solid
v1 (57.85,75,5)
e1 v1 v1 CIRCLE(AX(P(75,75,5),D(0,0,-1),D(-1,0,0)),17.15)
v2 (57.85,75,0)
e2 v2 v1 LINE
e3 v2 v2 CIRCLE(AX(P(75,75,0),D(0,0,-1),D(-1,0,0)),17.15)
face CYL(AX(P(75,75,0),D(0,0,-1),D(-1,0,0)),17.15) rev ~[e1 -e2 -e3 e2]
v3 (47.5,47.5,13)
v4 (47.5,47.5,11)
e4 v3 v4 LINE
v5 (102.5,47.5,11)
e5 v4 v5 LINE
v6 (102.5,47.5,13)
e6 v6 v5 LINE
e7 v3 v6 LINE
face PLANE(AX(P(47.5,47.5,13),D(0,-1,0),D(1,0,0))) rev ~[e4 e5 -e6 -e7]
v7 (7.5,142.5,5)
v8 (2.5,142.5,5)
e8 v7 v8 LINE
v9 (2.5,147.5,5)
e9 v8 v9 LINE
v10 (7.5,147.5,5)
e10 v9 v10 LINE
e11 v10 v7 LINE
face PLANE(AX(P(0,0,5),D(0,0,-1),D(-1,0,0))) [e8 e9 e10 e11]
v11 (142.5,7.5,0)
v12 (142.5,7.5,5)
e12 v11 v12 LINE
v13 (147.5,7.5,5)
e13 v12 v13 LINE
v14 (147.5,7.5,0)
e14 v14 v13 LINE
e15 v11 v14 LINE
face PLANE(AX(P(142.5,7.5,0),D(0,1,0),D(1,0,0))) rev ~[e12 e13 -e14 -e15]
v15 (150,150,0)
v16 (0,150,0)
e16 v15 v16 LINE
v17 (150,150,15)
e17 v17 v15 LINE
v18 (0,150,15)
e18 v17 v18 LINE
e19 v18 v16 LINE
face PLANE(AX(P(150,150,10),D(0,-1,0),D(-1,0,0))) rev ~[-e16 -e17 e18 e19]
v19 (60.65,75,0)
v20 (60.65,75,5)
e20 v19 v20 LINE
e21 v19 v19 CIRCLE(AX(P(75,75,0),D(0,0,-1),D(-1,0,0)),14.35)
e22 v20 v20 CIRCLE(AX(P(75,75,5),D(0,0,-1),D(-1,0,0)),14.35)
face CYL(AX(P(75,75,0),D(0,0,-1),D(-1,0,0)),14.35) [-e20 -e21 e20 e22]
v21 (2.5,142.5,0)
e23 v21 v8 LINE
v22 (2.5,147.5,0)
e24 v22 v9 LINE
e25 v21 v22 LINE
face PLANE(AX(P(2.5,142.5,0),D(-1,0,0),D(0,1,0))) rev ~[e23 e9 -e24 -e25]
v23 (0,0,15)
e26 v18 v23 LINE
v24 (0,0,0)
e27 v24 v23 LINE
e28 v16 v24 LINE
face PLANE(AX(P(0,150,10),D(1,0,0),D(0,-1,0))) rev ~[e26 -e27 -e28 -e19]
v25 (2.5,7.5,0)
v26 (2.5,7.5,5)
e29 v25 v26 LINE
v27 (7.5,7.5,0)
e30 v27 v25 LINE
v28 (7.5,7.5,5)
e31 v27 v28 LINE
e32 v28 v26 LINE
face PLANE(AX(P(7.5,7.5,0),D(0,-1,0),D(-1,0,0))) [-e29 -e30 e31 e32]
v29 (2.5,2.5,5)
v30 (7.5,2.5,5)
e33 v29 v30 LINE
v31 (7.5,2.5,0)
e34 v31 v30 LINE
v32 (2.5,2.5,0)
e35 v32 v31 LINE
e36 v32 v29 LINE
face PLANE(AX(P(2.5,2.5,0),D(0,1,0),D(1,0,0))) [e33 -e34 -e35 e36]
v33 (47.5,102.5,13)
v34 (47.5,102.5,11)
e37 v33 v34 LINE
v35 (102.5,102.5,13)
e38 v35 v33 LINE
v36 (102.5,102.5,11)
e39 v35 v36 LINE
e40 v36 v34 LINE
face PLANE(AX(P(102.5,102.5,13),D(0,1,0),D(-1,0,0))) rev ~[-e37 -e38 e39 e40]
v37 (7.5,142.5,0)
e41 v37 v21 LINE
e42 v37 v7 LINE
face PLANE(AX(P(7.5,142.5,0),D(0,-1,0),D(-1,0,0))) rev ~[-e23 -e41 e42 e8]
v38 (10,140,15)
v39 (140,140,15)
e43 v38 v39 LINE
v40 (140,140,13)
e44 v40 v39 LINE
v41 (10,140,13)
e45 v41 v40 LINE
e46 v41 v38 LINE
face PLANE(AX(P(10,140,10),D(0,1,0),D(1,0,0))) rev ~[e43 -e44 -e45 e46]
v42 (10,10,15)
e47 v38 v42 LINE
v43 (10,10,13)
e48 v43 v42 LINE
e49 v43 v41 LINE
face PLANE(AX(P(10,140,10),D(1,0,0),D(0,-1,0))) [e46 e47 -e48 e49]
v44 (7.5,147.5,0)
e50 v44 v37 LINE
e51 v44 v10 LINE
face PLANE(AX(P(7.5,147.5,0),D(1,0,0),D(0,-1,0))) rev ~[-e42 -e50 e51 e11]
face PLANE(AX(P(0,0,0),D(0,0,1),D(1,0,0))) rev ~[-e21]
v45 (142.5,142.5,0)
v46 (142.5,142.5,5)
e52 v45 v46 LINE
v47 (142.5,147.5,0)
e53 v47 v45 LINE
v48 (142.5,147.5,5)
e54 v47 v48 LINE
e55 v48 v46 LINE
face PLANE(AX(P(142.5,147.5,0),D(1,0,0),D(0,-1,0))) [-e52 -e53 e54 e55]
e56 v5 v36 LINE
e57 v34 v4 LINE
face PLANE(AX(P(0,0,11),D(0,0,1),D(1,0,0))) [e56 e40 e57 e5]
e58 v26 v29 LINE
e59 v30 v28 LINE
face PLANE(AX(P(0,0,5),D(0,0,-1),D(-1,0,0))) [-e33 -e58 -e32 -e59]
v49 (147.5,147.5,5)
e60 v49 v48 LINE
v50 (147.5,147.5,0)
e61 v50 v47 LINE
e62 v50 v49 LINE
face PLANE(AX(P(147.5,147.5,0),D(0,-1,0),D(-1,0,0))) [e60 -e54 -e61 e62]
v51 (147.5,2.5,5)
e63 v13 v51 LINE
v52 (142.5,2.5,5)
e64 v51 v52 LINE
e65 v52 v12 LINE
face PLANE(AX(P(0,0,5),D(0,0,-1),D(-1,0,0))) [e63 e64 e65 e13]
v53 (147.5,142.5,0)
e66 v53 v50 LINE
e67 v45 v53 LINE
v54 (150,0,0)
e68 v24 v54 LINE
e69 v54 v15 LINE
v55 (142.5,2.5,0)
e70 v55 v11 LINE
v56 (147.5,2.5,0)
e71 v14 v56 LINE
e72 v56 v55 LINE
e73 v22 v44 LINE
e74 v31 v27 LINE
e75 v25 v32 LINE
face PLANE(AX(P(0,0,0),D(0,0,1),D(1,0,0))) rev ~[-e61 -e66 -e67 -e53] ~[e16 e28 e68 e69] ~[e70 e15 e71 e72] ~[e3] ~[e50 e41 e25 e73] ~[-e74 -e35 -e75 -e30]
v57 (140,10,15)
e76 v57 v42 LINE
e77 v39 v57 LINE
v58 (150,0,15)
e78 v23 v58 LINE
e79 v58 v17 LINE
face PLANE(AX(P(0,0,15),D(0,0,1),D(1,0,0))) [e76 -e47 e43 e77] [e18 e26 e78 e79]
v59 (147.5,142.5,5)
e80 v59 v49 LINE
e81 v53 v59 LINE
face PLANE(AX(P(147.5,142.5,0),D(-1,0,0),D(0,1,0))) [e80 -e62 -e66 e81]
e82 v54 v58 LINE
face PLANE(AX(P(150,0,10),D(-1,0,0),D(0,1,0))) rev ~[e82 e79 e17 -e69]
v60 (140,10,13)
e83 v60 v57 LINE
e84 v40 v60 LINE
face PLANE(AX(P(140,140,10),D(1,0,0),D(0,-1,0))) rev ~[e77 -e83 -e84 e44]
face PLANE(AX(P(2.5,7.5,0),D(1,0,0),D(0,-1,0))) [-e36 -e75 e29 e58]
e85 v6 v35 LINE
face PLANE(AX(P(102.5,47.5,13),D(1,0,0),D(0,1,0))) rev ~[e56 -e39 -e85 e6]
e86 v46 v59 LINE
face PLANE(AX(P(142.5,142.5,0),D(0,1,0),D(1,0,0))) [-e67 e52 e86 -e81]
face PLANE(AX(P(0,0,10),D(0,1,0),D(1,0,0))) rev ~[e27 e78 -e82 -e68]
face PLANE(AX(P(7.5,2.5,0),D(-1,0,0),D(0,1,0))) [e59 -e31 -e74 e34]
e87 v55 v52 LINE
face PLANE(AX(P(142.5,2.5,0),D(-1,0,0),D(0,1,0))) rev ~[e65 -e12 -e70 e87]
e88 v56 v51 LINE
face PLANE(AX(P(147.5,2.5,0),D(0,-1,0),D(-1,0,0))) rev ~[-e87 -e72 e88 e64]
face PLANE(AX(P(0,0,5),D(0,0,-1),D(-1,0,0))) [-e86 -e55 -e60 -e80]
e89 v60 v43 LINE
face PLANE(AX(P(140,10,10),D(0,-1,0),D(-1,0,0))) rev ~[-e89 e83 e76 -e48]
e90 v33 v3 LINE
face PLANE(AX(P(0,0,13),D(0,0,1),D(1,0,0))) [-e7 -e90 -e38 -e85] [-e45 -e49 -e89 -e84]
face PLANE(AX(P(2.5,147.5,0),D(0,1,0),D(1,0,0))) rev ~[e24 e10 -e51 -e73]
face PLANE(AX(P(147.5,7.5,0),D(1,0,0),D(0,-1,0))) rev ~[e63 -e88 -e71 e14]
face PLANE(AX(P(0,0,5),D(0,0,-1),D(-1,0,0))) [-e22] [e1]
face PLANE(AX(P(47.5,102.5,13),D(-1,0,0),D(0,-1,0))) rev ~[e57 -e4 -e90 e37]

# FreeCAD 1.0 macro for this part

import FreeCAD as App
import Part
import Sketcher
from FreeCAD import Vector


def add_polygon(sketch, points):
    """Adds a closed chain of lines whose ends are joined by coincident constraints."""
    first, n = sketch.GeometryCount, len(points)
    for a, b in zip(points, points[1:] + points[:1]):
        sketch.addGeometry(Part.LineSegment(App.Vector(*a, 0), App.Vector(*b, 0)), False)
    for i in range(n):
        sketch.addConstraint(Sketcher.Constraint("Coincident", first + i, 2, first + (i + 1) % n, 1))

doc = App.newDocument("Part")
body = doc.addObject("PartDesign::Body", "Body")

sketch1 = doc.addObject("Sketcher::SketchObject", "Sketch")
body.addObject(sketch1)
sketch1.AttachmentSupport = (doc.XY_Plane, [""])
sketch1.MapMode = "FlatFace"
add_polygon(sketch1, [(0, 150), (0, 0), (150, 0), (150, 150)])
sketch1.addConstraint([
    Sketcher.Constraint("Vertical", 0),
    Sketcher.Constraint("Horizontal", 1),
    Sketcher.Constraint("Vertical", 2),
    Sketcher.Constraint("Horizontal", 3),
    Sketcher.Constraint("Coincident", 0, 2, -1, 1),
    Sketcher.Constraint("Equal", 3, 0),
    Sketcher.Constraint("DistanceX", 1, 1, 1, 2, 150.0),
])
pad1 = doc.addObject("PartDesign::Pad", "Pad")
body.addObject(pad1)
pad1.Profile = sketch1
pad1.Length = 10

sketch2 = doc.addObject("Sketcher::SketchObject", "Sketch001")
body.addObject(sketch2)
sketch2.AttachmentSupport = (doc.XY_Plane, [""])
sketch2.MapMode = "FlatFace"
sketch2.AttachmentOffset = App.Placement(Vector(0, 0, 10), App.Rotation())
add_polygon(sketch2, [(10, 140), (10, 10), (140, 10), (140, 140)])
sketch2.addConstraint([
    Sketcher.Constraint("Vertical", 0),
    Sketcher.Constraint("Horizontal", 1),
    Sketcher.Constraint("Vertical", 2),
    Sketcher.Constraint("Horizontal", 3),
    Sketcher.Constraint("Equal", 3, 0),
    Sketcher.Constraint("DistanceX", 1, 1, 1, 2, 130.0),
    Sketcher.Constraint("DistanceX", -1, 1, 0, 2, 10.0),
    Sketcher.Constraint("DistanceY", -1, 1, 0, 2, 10.0),
])
pocket1 = doc.addObject("PartDesign::Pocket", "Pocket")
body.addObject(pocket1)
pocket1.Profile = sketch2
pocket1.Length = 2

sketch3 = doc.addObject("Sketcher::SketchObject", "Sketch002")
body.addObject(sketch3)
sketch3.AttachmentSupport = (doc.XY_Plane, [""])
sketch3.MapMode = "FlatFace"
sketch3.addGeometry(Part.Circle(Vector(75, 75, 0), Vector(0, 0, 1), 17), False)
sketch3.addGeometry(Part.Circle(Vector(75, 75, 0), Vector(0, 0, 1), 14), False)
add_polygon(sketch3, [(148, 8), (148, 2), (142, 2), (142, 8)])
add_polygon(sketch3, [(8, 2), (2, 2), (2, 8), (8, 8)])
add_polygon(sketch3, [(142, 148), (148, 148), (148, 142), (142, 142)])
add_polygon(sketch3, [(2, 142), (2, 148), (8, 148), (8, 142)])
sketch3.addConstraint([
    Sketcher.Constraint("Vertical", 2),
    Sketcher.Constraint("Horizontal", 3),
    Sketcher.Constraint("Vertical", 4),
    Sketcher.Constraint("Horizontal", 5),
    Sketcher.Constraint("Horizontal", 6),
    Sketcher.Constraint("Vertical", 7),
    Sketcher.Constraint("Horizontal", 8),
    Sketcher.Constraint("Vertical", 9),
    Sketcher.Constraint("Horizontal", 10),
    Sketcher.Constraint("Vertical", 11),
    Sketcher.Constraint("Horizontal", 12),
    Sketcher.Constraint("Vertical", 13),
    Sketcher.Constraint("Vertical", 14),
    Sketcher.Constraint("Horizontal", 15),
    Sketcher.Constraint("Vertical", 16),
    Sketcher.Constraint("Horizontal", 17),
    Sketcher.Constraint("Coincident", 1, 3, 0, 3),
    Sketcher.Constraint("Horizontal", 3, 2, 6, 2),
    Sketcher.Constraint("Horizontal", 5, 2, 7, 2),
    Sketcher.Constraint("Horizontal", 13, 2, 14, 2),
    Sketcher.Constraint("Horizontal", 12, 2, 16, 2),
    Sketcher.Constraint("Vertical", 5, 2, 10, 2),
    Sketcher.Constraint("Vertical", 4, 2, 12, 2),
    Sketcher.Constraint("Vertical", 7, 2, 14, 2),
    Sketcher.Constraint("Vertical", 9, 2, 15, 2),
    Sketcher.Constraint("Equal", 5, 6),
    Sketcher.Constraint("Equal", 17, 2),
    Sketcher.Constraint("Equal", 9, 11),
    Sketcher.Constraint("Diameter", 0, 34.3),
    Sketcher.Constraint("Diameter", 1, 28.7),
    Sketcher.Constraint("DistanceX", 3, 2, 3, 1, 5.0),
    Sketcher.Constraint("DistanceX", -1, 1, 0, 3, 75.0),
    Sketcher.Constraint("DistanceY", -1, 1, 0, 3, 75.0),
    Sketcher.Constraint("DistanceX", 6, 2, 3, 2, 140.0),
    Sketcher.Constraint("DistanceY", 5, 2, 10, 2, 140.0),
    Sketcher.Constraint("DistanceX", -1, 1, 2, 2, 147.5),
    Sketcher.Constraint("DistanceY", -1, 1, 2, 2, 2.5),
])
pocket2 = doc.addObject("PartDesign::Pocket", "Pocket001")
body.addObject(pocket2)
pocket2.Profile = sketch3
pocket2.Length = 5
pocket2.Reversed = True

sketch4 = doc.addObject("Sketcher::SketchObject", "Sketch003")
body.addObject(sketch4)
sketch4.AttachmentSupport = (doc.XY_Plane, [""])
sketch4.MapMode = "FlatFace"
sketch4.AttachmentOffset = App.Placement(Vector(0, 0, 8), App.Rotation())
add_polygon(sketch4, [(102, 102), (48, 102), (48, 48), (102, 48)])
sketch4.addConstraint([
    Sketcher.Constraint("Horizontal", 0),
    Sketcher.Constraint("Vertical", 1),
    Sketcher.Constraint("Horizontal", 2),
    Sketcher.Constraint("Vertical", 3),
    Sketcher.Constraint("Equal", 2, 1),
    Sketcher.Constraint("DistanceX", 0, 2, 0, 1, 55.0),
    Sketcher.Constraint("DistanceX", -1, 1, 0, 2, 47.5),
    Sketcher.Constraint("DistanceY", -1, 1, 0, 2, 102.5),
])
pocket3 = doc.addObject("PartDesign::Pocket", "Pocket002")
body.addObject(pocket3)
pocket3.Profile = sketch4
pocket3.Length = 2

sketch5 = doc.addObject("Sketcher::SketchObject", "Sketch004")
body.addObject(sketch5)
sketch5.AttachmentSupport = (doc.XY_Plane, [""])
sketch5.MapMode = "FlatFace"
sketch5.AttachmentOffset = App.Placement(Vector(0, 0, 6), App.Rotation())
add_polygon(sketch5, [(48, 102), (48, 48), (102, 48), (102, 102)])
sketch5.addConstraint([
    Sketcher.Constraint("Vertical", 0),
    Sketcher.Constraint("Horizontal", 1),
    Sketcher.Constraint("Vertical", 2),
    Sketcher.Constraint("Horizontal", 3),
    Sketcher.Constraint("Equal", 3, 0),
    Sketcher.Constraint("DistanceX", 1, 1, 1, 2, 55.0),
    Sketcher.Constraint("DistanceX", -1, 1, 0, 2, 47.5),
    Sketcher.Constraint("DistanceY", -1, 1, 0, 2, 47.5),
])
pad2 = doc.addObject("PartDesign::Pad", "Pad001")
body.addObject(pad2)
pad2.Profile = sketch5
pad2.Length = 2

sketch6 = doc.addObject("Sketcher::SketchObject", "Sketch005")
body.addObject(sketch6)
sketch6.AttachmentSupport = (doc.XY_Plane, [""])
sketch6.MapMode = "FlatFace"
sketch6.AttachmentOffset = App.Placement(Vector(0, 0, 8), App.Rotation())
add_polygon(sketch6, [(38, 112), (38, 38), (112, 38), (112, 112)])
sketch6.addConstraint([
    Sketcher.Constraint("Vertical", 0),
    Sketcher.Constraint("Horizontal", 1),
    Sketcher.Constraint("Vertical", 2),
    Sketcher.Constraint("Horizontal", 3),
    Sketcher.Constraint("Equal", 3, 0),
    Sketcher.Constraint("DistanceX", 1, 1, 1, 2, 75.0),
    Sketcher.Constraint("DistanceX", -1, 1, 0, 2, 37.5),
    Sketcher.Constraint("DistanceY", -1, 1, 0, 2, 37.5),
])
pad3 = doc.addObject("PartDesign::Pad", "Pad002")
body.addObject(pad3)
pad3.Profile = sketch6
pad3.Length = 5

sketch7 = doc.addObject("Sketcher::SketchObject", "Sketch006")
body.addObject(sketch7)
sketch7.AttachmentSupport = (doc.XY_Plane, [""])
sketch7.MapMode = "FlatFace"
sketch7.AttachmentOffset = App.Placement(Vector(0, 0, 13), App.Rotation())
add_polygon(sketch7, [(48, 102), (48, 48), (102, 48), (102, 102)])
sketch7.addConstraint([
    Sketcher.Constraint("Vertical", 0),
    Sketcher.Constraint("Horizontal", 1),
    Sketcher.Constraint("Vertical", 2),
    Sketcher.Constraint("Horizontal", 3),
    Sketcher.Constraint("Equal", 3, 0),
    Sketcher.Constraint("DistanceX", 1, 1, 1, 2, 55.0),
    Sketcher.Constraint("DistanceX", -1, 1, 0, 2, 47.5),
    Sketcher.Constraint("DistanceY", -1, 1, 0, 2, 47.5),
])
pocket4 = doc.addObject("PartDesign::Pocket", "Pocket003")
body.addObject(pocket4)
pocket4.Profile = sketch7
pocket4.Length = 2

sketch8 = doc.addObject("Sketcher::SketchObject", "Sketch007")
body.addObject(sketch8)
sketch8.AttachmentSupport = (doc.XY_Plane, [""])
sketch8.MapMode = "FlatFace"
sketch8.AttachmentOffset = App.Placement(Vector(0, 0, 8), App.Rotation())
add_polygon(sketch8, [(140, 10), (140, 140), (10, 140), (10, 10)])
add_polygon(sketch8, [(112, 38), (38, 38), (38, 112), (112, 112)])
sketch8.addConstraint([
    Sketcher.Constraint("Vertical", 0),
    Sketcher.Constraint("Horizontal", 1),
    Sketcher.Constraint("Vertical", 2),
    Sketcher.Constraint("Horizontal", 3),
    Sketcher.Constraint("Horizontal", 4),
    Sketcher.Constraint("Vertical", 5),
    Sketcher.Constraint("Horizontal", 6),
    Sketcher.Constraint("Vertical", 7),
    Sketcher.Constraint("Equal", 3, 0),
    Sketcher.Constraint("Equal", 6, 5),
    Sketcher.Constraint("DistanceX", 1, 2, 1, 1, 130.0),
    Sketcher.Constraint("DistanceX", 4, 2, 4, 1, 75.0),
    Sketcher.Constraint("DistanceX", -1, 1, 0, 2, 140.0),
    Sketcher.Constraint("DistanceY", -1, 1, 0, 2, 140.0),
    Sketcher.Constraint("DistanceX", -1, 1, 4, 2, 37.5),
    Sketcher.Constraint("DistanceY", -1, 1, 4, 2, 37.5),
])
pad4 = doc.addObject("PartDesign::Pad", "Pad003")
body.addObject(pad4)
pad4.Profile = sketch8
pad4.Length = 5

sketch9 = doc.addObject("Sketcher::SketchObject", "Sketch008")
body.addObject(sketch9)
sketch9.AttachmentSupport = (doc.XY_Plane, [""])
sketch9.MapMode = "FlatFace"
sketch9.AttachmentOffset = App.Placement(Vector(0, 0, 10), App.Rotation())
add_polygon(sketch9, [(0, 150), (0, 0), (150, 0), (150, 150)])
add_polygon(sketch9, [(10, 10), (10, 140), (140, 140), (140, 10)])
sketch9.addConstraint([
    Sketcher.Constraint("Vertical", 0),
    Sketcher.Constraint("Horizontal", 1),
    Sketcher.Constraint("Vertical", 2),
    Sketcher.Constraint("Horizontal", 3),
    Sketcher.Constraint("Vertical", 4),
    Sketcher.Constraint("Horizontal", 5),
    Sketcher.Constraint("Vertical", 6),
    Sketcher.Constraint("Horizontal", 7),
    Sketcher.Constraint("Coincident", 0, 2, -1, 1),
    Sketcher.Constraint("Equal", 3, 0),
    Sketcher.Constraint("Equal", 7, 4),
    Sketcher.Constraint("DistanceX", 1, 1, 1, 2, 150.0),
    Sketcher.Constraint("DistanceX", 5, 1, 5, 2, 130.0),
    Sketcher.Constraint("DistanceX", -1, 1, 4, 2, 10.0),
    Sketcher.Constraint("DistanceY", -1, 1, 4, 2, 140.0),
])
pad5 = doc.addObject("PartDesign::Pad", "Pad004")
body.addObject(pad5)
pad5.Profile = sketch9
pad5.Length = 5

doc.recompute()
